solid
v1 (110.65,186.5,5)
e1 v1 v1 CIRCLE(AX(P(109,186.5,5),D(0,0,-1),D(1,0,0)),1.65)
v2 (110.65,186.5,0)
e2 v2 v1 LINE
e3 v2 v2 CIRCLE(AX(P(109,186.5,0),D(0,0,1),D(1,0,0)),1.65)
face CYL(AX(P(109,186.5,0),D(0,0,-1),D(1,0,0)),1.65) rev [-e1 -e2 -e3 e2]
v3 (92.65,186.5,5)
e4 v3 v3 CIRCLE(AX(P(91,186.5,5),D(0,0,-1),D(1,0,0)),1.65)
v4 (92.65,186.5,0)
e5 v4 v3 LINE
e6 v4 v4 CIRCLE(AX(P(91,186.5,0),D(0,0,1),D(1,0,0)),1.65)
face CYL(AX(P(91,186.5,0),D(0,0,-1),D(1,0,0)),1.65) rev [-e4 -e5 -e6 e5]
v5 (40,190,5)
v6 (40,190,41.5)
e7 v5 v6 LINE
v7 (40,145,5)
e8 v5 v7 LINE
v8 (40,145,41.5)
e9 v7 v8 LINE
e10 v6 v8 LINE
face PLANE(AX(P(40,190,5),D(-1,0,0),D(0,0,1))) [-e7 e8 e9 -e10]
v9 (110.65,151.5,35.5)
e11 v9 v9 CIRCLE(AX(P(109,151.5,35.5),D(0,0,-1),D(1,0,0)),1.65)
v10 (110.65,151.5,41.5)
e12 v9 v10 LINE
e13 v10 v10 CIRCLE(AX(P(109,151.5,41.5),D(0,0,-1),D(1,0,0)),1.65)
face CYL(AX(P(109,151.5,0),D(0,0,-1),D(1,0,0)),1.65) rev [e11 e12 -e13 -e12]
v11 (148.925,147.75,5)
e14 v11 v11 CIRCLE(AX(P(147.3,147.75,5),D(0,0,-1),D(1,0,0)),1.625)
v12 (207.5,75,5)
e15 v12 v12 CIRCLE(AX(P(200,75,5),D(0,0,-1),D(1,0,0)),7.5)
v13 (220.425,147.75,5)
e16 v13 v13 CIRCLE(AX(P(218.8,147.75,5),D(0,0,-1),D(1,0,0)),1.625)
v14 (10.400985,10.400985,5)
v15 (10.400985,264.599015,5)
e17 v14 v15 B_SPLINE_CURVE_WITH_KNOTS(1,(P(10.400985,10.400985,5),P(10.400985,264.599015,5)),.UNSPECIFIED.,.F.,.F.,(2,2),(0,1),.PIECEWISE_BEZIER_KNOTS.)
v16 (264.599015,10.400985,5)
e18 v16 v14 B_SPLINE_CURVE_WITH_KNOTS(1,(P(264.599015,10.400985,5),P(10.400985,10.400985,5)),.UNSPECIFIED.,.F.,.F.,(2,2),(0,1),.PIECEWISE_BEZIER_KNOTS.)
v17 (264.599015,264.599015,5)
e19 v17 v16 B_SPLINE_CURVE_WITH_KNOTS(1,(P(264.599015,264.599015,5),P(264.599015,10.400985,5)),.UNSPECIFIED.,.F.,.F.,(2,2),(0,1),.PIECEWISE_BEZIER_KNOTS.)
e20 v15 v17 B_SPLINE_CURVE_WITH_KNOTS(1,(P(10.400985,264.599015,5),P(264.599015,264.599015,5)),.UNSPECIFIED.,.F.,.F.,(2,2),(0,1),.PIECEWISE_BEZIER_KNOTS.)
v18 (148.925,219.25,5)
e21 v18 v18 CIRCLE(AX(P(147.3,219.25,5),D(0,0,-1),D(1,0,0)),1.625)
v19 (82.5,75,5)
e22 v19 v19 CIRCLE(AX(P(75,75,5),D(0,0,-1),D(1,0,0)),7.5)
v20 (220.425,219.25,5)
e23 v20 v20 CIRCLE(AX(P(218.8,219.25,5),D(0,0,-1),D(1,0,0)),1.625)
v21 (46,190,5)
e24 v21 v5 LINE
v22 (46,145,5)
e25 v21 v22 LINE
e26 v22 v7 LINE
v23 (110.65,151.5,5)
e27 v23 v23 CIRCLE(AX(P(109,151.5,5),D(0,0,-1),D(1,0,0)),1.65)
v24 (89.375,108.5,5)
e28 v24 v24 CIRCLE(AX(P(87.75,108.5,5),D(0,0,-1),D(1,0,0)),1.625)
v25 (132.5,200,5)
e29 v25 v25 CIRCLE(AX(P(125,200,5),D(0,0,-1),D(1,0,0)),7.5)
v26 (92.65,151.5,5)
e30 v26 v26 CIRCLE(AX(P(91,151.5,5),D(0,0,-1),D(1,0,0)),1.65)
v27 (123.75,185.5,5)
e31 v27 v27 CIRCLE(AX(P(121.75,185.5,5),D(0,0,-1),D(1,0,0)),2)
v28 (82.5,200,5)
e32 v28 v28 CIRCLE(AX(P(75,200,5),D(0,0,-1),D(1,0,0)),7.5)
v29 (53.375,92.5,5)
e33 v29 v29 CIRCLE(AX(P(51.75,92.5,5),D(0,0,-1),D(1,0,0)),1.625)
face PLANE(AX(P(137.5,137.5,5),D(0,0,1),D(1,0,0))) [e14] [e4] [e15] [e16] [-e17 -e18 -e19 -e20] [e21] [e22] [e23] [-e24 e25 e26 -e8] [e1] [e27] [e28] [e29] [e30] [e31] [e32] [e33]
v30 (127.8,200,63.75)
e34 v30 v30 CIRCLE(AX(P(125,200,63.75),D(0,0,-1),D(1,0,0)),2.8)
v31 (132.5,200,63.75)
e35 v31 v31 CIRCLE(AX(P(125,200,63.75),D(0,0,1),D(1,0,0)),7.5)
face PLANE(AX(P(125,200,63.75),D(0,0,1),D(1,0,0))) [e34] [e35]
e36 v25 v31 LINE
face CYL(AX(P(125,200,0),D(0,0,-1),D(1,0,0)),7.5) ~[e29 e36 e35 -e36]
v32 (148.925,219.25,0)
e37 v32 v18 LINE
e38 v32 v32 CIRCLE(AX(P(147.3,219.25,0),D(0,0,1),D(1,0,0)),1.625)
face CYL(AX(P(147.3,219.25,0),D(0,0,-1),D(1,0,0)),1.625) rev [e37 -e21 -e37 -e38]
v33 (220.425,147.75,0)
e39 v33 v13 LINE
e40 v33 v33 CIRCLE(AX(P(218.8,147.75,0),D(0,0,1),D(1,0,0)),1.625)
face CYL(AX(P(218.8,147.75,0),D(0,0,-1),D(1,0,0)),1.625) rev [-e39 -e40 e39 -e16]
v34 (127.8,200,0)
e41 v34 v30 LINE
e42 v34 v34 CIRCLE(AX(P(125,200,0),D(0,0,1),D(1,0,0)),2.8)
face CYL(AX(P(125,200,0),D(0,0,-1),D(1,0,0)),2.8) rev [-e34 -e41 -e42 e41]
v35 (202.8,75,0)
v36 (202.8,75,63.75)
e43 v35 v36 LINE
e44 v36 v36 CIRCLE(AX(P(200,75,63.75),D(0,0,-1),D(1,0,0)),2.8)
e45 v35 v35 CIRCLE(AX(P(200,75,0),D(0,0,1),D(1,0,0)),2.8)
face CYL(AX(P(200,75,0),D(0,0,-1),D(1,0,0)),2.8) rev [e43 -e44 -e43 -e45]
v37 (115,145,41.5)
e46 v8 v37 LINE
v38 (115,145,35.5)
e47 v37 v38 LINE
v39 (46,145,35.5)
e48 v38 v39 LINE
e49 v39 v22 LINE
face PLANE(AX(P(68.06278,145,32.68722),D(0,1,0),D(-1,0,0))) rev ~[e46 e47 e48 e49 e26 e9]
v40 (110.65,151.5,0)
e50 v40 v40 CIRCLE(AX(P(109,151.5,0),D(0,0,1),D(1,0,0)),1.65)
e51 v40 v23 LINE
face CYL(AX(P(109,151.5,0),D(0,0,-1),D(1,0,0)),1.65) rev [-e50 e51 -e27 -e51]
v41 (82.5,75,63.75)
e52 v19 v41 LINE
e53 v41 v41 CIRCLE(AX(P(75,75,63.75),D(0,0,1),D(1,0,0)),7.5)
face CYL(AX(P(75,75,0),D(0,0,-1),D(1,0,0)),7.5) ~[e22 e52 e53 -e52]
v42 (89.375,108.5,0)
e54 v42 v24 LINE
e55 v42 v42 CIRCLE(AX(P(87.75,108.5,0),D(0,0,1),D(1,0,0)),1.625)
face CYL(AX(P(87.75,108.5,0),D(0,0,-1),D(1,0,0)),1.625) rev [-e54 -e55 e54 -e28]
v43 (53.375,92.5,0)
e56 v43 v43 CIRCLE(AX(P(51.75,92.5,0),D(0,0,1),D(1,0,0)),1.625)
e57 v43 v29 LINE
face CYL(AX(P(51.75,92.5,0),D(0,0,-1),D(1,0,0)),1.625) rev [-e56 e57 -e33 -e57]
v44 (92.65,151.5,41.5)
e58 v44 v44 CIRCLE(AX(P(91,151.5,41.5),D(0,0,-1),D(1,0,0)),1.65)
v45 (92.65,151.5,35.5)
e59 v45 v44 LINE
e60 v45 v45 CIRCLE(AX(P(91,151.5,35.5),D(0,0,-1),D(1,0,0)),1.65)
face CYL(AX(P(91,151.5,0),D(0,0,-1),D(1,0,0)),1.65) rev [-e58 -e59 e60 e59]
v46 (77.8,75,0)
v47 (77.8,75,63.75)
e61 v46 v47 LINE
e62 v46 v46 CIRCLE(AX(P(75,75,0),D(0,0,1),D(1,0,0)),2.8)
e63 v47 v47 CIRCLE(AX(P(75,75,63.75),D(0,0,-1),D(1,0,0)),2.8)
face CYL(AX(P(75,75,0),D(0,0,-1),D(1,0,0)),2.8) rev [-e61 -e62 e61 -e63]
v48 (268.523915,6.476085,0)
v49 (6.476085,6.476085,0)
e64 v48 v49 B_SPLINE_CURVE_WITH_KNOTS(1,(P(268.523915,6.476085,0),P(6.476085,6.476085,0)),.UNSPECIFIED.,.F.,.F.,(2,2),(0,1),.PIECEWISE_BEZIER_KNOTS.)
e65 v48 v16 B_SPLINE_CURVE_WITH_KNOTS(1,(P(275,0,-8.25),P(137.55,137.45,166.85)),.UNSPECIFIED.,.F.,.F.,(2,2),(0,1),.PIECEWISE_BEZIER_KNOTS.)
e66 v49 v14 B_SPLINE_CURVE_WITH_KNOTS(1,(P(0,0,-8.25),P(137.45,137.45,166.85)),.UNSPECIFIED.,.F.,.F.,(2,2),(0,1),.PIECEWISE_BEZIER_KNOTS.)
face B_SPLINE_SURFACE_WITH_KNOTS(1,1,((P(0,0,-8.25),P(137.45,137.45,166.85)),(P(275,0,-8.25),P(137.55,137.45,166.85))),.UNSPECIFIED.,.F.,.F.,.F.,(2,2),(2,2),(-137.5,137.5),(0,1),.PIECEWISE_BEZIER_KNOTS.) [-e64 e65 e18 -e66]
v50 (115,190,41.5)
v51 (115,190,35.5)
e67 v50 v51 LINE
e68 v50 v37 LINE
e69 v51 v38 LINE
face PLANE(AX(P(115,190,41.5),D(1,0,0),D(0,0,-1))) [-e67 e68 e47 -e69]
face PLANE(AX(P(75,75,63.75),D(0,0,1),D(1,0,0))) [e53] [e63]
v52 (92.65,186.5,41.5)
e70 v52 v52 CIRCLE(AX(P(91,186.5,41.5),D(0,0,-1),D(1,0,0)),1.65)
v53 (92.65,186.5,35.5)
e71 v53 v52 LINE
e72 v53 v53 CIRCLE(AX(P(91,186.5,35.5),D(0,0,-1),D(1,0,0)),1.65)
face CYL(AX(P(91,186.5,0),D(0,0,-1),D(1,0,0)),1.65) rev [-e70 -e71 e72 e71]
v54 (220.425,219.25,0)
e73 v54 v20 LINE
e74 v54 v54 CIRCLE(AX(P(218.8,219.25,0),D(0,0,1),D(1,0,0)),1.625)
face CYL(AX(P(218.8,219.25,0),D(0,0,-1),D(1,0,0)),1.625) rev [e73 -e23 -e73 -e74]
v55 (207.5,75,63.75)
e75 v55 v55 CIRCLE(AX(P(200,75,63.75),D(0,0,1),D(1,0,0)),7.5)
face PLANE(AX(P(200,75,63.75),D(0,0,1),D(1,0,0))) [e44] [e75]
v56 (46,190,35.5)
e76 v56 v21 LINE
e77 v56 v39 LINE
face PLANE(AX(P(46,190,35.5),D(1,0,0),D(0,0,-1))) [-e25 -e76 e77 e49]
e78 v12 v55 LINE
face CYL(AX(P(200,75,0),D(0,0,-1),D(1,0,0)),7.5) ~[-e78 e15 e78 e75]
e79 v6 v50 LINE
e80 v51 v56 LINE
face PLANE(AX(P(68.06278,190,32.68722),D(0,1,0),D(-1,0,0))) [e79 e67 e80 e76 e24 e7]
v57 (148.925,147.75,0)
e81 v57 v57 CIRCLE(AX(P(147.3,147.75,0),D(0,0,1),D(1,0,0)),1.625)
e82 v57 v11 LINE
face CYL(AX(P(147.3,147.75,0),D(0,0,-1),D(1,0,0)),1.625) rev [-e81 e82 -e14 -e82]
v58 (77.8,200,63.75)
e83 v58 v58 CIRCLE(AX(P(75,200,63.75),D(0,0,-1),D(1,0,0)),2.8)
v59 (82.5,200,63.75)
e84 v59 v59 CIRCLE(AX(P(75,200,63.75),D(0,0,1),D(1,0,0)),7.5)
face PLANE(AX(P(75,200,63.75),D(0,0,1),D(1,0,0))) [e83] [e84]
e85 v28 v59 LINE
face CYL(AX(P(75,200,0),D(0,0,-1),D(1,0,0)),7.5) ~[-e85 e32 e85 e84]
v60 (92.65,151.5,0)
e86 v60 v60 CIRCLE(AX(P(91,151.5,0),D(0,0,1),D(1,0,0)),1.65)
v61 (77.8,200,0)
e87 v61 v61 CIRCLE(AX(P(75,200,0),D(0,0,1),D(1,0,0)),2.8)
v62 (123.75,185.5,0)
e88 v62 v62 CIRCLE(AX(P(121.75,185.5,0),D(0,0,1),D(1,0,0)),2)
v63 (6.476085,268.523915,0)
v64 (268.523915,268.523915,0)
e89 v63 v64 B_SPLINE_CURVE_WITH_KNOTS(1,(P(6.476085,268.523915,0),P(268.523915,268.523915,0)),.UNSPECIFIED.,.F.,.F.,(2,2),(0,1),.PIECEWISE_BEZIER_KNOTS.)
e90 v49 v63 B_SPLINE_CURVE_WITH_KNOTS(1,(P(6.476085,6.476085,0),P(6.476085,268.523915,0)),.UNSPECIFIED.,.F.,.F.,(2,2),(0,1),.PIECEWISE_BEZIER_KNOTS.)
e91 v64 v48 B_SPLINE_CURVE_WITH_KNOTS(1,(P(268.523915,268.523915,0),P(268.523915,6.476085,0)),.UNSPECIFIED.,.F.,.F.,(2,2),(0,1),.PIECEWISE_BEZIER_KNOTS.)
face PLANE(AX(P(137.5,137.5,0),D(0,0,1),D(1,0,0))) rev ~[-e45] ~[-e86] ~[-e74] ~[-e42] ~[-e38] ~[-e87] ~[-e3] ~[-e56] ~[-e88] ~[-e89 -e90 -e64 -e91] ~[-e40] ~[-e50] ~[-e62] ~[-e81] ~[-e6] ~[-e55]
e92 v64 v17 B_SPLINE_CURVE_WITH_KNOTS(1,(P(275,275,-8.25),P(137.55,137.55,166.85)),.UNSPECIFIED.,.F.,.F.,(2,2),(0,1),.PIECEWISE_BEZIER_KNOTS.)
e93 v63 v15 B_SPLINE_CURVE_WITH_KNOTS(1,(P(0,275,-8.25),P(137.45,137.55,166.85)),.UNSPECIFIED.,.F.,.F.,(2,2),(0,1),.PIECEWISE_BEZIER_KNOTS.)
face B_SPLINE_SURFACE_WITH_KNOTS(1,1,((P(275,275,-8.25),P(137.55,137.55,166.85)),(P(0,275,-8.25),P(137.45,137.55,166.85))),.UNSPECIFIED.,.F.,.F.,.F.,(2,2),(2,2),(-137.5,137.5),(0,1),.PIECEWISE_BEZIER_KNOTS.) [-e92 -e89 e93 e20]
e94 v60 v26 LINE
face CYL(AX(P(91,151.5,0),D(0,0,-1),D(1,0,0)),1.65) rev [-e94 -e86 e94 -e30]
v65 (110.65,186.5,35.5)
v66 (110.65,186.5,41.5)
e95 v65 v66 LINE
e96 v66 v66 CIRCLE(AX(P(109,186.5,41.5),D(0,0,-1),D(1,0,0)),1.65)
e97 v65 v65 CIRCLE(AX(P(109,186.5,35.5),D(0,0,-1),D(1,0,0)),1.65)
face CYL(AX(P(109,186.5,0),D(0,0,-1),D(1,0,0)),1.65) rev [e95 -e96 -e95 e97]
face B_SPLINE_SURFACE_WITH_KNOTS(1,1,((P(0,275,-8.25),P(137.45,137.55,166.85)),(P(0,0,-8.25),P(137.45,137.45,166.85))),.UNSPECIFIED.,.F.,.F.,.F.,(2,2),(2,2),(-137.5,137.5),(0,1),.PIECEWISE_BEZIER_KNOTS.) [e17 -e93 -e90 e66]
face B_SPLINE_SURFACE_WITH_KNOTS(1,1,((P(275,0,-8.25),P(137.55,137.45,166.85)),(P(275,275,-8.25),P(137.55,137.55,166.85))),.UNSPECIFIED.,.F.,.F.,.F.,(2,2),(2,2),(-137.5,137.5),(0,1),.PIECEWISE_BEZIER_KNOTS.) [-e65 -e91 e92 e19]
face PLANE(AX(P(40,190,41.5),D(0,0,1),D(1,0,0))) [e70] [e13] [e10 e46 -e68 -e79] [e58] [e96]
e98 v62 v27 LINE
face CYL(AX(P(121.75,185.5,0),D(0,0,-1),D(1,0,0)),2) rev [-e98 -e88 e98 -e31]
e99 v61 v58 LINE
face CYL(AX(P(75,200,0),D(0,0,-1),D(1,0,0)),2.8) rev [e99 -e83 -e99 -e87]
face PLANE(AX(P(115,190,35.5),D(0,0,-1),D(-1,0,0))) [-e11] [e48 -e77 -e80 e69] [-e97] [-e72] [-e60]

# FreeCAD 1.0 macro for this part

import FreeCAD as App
import Part
import Sketcher
from FreeCAD import Vector


def add_polygon(sketch, points):
    """Adds a closed chain of lines whose ends are joined by coincident constraints."""
    first, n = sketch.GeometryCount, len(points)
    for a, b in zip(points, points[1:] + points[:1]):
        sketch.addGeometry(Part.LineSegment(App.Vector(*a, 0), App.Vector(*b, 0)), False)
    for i in range(n):
        sketch.addConstraint(Sketcher.Constraint("Coincident", first + i, 2, first + (i + 1) % n, 1))

doc = App.newDocument("Part")
body = doc.addObject("PartDesign::Body", "Body")
body.AllowCompound = True

sketch1 = doc.addObject("Sketcher::SketchObject", "Sketch")
body.addObject(sketch1)
sketch1.AttachmentSupport = (doc.XY_Plane, [""])
sketch1.MapMode = "FlatFace"
sketch1.addGeometry(Part.Circle(Vector(51.8, 92.5, 0), Vector(0, 0, 1), 1.6), False)
sketch1.addGeometry(Part.Circle(Vector(87.8, 108.5, 0), Vector(0, 0, 1), 1.6), False)
sketch1.addGeometry(Part.Circle(Vector(121.8, 185.5, 0), Vector(0, 0, 1), 2), False)
sketch1.addGeometry(Part.Circle(Vector(147.3, 147.8, 0), Vector(0, 0, 1), 1.6), False)
sketch1.addGeometry(Part.Circle(Vector(218.8, 147.8, 0), Vector(0, 0, 1), 1.6), False)
sketch1.addGeometry(Part.Circle(Vector(218.8, 219.2, 0), Vector(0, 0, 1), 1.6), False)
sketch1.addGeometry(Part.Circle(Vector(147.3, 219.2, 0), Vector(0, 0, 1), 1.6), False)
sketch1.addGeometry(Part.Circle(Vector(75, 200, 0), Vector(0, 0, 1), 2.8), False)
sketch1.addGeometry(Part.Circle(Vector(125, 200, 0), Vector(0, 0, 1), 2.8), False)
sketch1.addGeometry(Part.Circle(Vector(200, 75, 0), Vector(0, 0, 1), 2.8), False)
sketch1.addGeometry(Part.Circle(Vector(75, 75, 0), Vector(0, 0, 1), 2.8), False)
sketch1.addGeometry(Part.Circle(Vector(91, 186.5, 0), Vector(0, 0, 1), 1.6), False)
sketch1.addGeometry(Part.Circle(Vector(109, 186.5, 0), Vector(0, 0, 1), 1.6), False)
sketch1.addGeometry(Part.Circle(Vector(91, 151.5, 0), Vector(0, 0, 1), 1.6), False)
sketch1.addGeometry(Part.Circle(Vector(109, 151.5, 0), Vector(0, 0, 1), 1.6), False)
sketch1.addConstraint(Sketcher.Constraint("Equal", 0, 1))
sketch1.addConstraint(Sketcher.Constraint("Equal", 1, 3))
sketch1.addConstraint(Sketcher.Constraint("Equal", 3, 4))
sketch1.addConstraint(Sketcher.Constraint("Equal", 4, 5))
sketch1.addConstraint(Sketcher.Constraint("Equal", 5, 6))
sketch1.addConstraint(Sketcher.Constraint("Equal", 7, 8))
sketch1.addConstraint(Sketcher.Constraint("Equal", 8, 9))
sketch1.addConstraint(Sketcher.Constraint("Equal", 9, 10))
sketch1.addConstraint(Sketcher.Constraint("Equal", 11, 12))
sketch1.addConstraint(Sketcher.Constraint("Equal", 12, 13))
sketch1.addConstraint(Sketcher.Constraint("Equal", 13, 14))
sketch1.addConstraint(Sketcher.Constraint("Horizontal", 3, 3, 4, 3))
sketch1.addConstraint(Sketcher.Constraint("Horizontal", 5, 3, 6, 3))
sketch1.addConstraint(Sketcher.Constraint("Horizontal", 7, 3, 8, 3))
sketch1.addConstraint(Sketcher.Constraint("Horizontal", 9, 3, 10, 3))
sketch1.addConstraint(Sketcher.Constraint("Horizontal", 11, 3, 12, 3))
sketch1.addConstraint(Sketcher.Constraint("Horizontal", 13, 3, 14, 3))
sketch1.addConstraint(Sketcher.Constraint("Vertical", 4, 3, 5, 3))
sketch1.addConstraint(Sketcher.Constraint("Vertical", 3, 3, 6, 3))
sketch1.addConstraint(Sketcher.Constraint("Vertical", 7, 3, 10, 3))
sketch1.addConstraint(Sketcher.Constraint("Vertical", 11, 3, 13, 3))
sketch1.addConstraint(Sketcher.Constraint("Vertical", 12, 3, 14, 3))
sketch1.addConstraint(Sketcher.Constraint("Diameter", 2, 4.0))
sketch1.addConstraint(Sketcher.Constraint("Diameter", 7, 5.6))
sketch1.addConstraint(Sketcher.Constraint("Diameter", 11, 3.3))
sketch1.addConstraint(Sketcher.Constraint("Diameter", 0, 3.25))
sketch1.addConstraint(Sketcher.Constraint("DistanceX", -1, 1, 7, 3, 75.0))
sketch1.addConstraint(Sketcher.Constraint("DistanceY", -1, 1, 7, 3, 200.0))
sketch1.addConstraint(Sketcher.Constraint("DistanceX", -1, 1, 8, 3, 125.0))
sketch1.addConstraint(Sketcher.Constraint("DistanceX", -1, 1, 9, 3, 200.0))
sketch1.addConstraint(Sketcher.Constraint("DistanceY", -1, 1, 9, 3, 75.0))
sketch1.addConstraint(Sketcher.Constraint("DistanceX", -1, 1, 11, 3, 91.0))
sketch1.addConstraint(Sketcher.Constraint("DistanceX", -1, 1, 12, 3, 109.0))
sketch1.addConstraint(Sketcher.Constraint("DistanceX", 0, 3, 1, 3, 36.0))
sketch1.addConstraint(Sketcher.Constraint("DistanceY", 0, 3, 1, 3, 16.0))
sketch1.addConstraint(Sketcher.Constraint("DistanceX", 1, 3, 2, 3, 34.0))
sketch1.addConstraint(Sketcher.Constraint("DistanceY", 1, 3, 2, 3, 77.0))
sketch1.addConstraint(Sketcher.Constraint("DistanceY", 2, 3, 11, 3, 1.0))
sketch1.addConstraint(Sketcher.Constraint("DistanceY", 13, 3, 11, 3, 35.0))
sketch1.addConstraint(Sketcher.Constraint("DistanceY", -1, 1, 0, 3, 92.5))
sketch1.addConstraint(Sketcher.Constraint("DistanceX", -1, 1, 3, 3, 147.3))
sketch1.addConstraint(Sketcher.Constraint("DistanceX", -1, 1, 4, 3, 218.8))
sketch1.addConstraint(Sketcher.Constraint("DistanceY", 4, 3, 5, 3, 71.5))
sketch1.addConstraint(Sketcher.Constraint("DistanceX", -1, 1, 0, 3, 51.75))
sketch1.addConstraint(Sketcher.Constraint("DistanceY", -1, 1, 3, 3, 147.75))
pad1 = doc.addObject("PartDesign::Pad", "Pad")
body.addObject(pad1)
pad1.Profile = sketch1
pad1.Length = 80
body2 = doc.addObject("PartDesign::Body", "Body001")

sketch2 = doc.addObject("Sketcher::SketchObject", "Sketch001")
body2.addObject(sketch2)
sketch2.AttachmentSupport = (doc.getObject("XZ_Plane001"), [""])
sketch2.MapMode = "FlatFace"
add_polygon(sketch2, [(40, 5), (46, 5), (46, 36), (115, 36), (115, 42), (40, 42)])
sketch2.addConstraint(Sketcher.Constraint("Horizontal", 0))
sketch2.addConstraint(Sketcher.Constraint("Vertical", 1))
sketch2.addConstraint(Sketcher.Constraint("Horizontal", 2))
sketch2.addConstraint(Sketcher.Constraint("Vertical", 3))
sketch2.addConstraint(Sketcher.Constraint("Horizontal", 4))
sketch2.addConstraint(Sketcher.Constraint("Vertical", 5))
sketch2.addConstraint(Sketcher.Constraint("Equal", 0, 3))
sketch2.addConstraint(Sketcher.Constraint("DistanceX", 0, 1, 0, 2, 6.0))
sketch2.addConstraint(Sketcher.Constraint("DistanceX", 2, 1, 2, 2, 69.0))
sketch2.addConstraint(Sketcher.Constraint("DistanceY", 1, 1, 1, 2, 30.5))
sketch2.addConstraint(Sketcher.Constraint("DistanceX", -1, 1, 0, 2, 46.0))
sketch2.addConstraint(Sketcher.Constraint("DistanceY", -1, 1, 0, 2, 5.0))
pad2 = doc.addObject("PartDesign::Pad", "Pad001")
body2.addObject(pad2)
pad2.Profile = sketch2
pad2.Length = 45
body3 = doc.addObject("PartDesign::Body", "Body002")
doc.recompute()

body2.Placement = App.Placement(Vector(0, 190, 0), App.Rotation(Vector(0, 0, 1), 0))
boolean = doc.addObject("PartDesign::Boolean", "Boolean")
body3.addObject(boolean)
boolean.Type = "Fuse"
boolean.addObjects([body2])
body4 = doc.addObject("PartDesign::Body", "Body003")

sketch3 = doc.addObject("Sketcher::SketchObject", "Sketch002")
body4.addObject(sketch3)
sketch3.AttachmentSupport = (doc.getObject("XY_Plane003"), [""])
sketch3.MapMode = "FlatFace"
add_polygon(sketch3, [(0, 275), (0, 0), (275, 0), (275, 275)])
sketch3.addConstraint(Sketcher.Constraint("Vertical", 0))
sketch3.addConstraint(Sketcher.Constraint("Horizontal", 1))
sketch3.addConstraint(Sketcher.Constraint("Vertical", 2))
sketch3.addConstraint(Sketcher.Constraint("Horizontal", 3))
sketch3.addConstraint(Sketcher.Constraint("Coincident", 0, 2, -1, 1))
sketch3.addConstraint(Sketcher.Constraint("Equal", 3, 0))
sketch3.addConstraint(Sketcher.Constraint("DistanceX", 1, 1, 1, 2, 275.0))
pad3 = doc.addObject("PartDesign::Pad", "Pad002")
body4.addObject(pad3)
pad3.Profile = sketch3
pad3.Length = 5
body5 = doc.addObject("PartDesign::Body", "Body004")

sketch4 = doc.addObject("Sketcher::SketchObject", "Sketch003")
body5.addObject(sketch4)
sketch4.AttachmentSupport = (doc.getObject("XY_Plane004"), [""])
sketch4.MapMode = "FlatFace"
add_polygon(sketch4, [(0, 275), (0, 0), (275, 0), (275, 275)])
sketch4.addConstraint(Sketcher.Constraint("Vertical", 0))
sketch4.addConstraint(Sketcher.Constraint("Horizontal", 1))
sketch4.addConstraint(Sketcher.Constraint("Vertical", 2))
sketch4.addConstraint(Sketcher.Constraint("Horizontal", 3))
sketch4.addConstraint(Sketcher.Constraint("Coincident", 0, 2, -1, 1))
sketch4.addConstraint(Sketcher.Constraint("Equal", 3, 0))
sketch4.addConstraint(Sketcher.Constraint("DistanceX", 1, 1, 1, 2, 275.0))

sketch5 = doc.addObject("Sketcher::SketchObject", "Sketch004")
body5.addObject(sketch5)
sketch5.AttachmentSupport = (doc.getObject("XY_Plane004"), [""])
sketch5.MapMode = "FlatFace"
sketch5.AttachmentOffset = App.Placement(Vector(0, 0, 175.1), App.Rotation())
add_polygon(sketch5, [(137.45, 137.55), (137.45, 137.45), (137.55, 137.45), (137.55, 137.55)])
sketch5.addConstraint(Sketcher.Constraint("Vertical", 0))
sketch5.addConstraint(Sketcher.Constraint("Horizontal", 1))
sketch5.addConstraint(Sketcher.Constraint("Vertical", 2))
sketch5.addConstraint(Sketcher.Constraint("Horizontal", 3))
sketch5.addConstraint(Sketcher.Constraint("Equal", 3, 0))
sketch5.addConstraint(Sketcher.Constraint("DistanceX", 1, 1, 1, 2, 0.1))
sketch5.addConstraint(Sketcher.Constraint("DistanceX", -1, 1, 0, 2, 137.45))
sketch5.addConstraint(Sketcher.Constraint("DistanceY", -1, 1, 0, 2, 137.45))

additiveloft = doc.addObject("PartDesign::AdditiveLoft", "AdditiveLoft")
body5.addObject(additiveloft)
additiveloft.Profile = sketch4
additiveloft.Sections = [sketch5]
body6 = doc.addObject("PartDesign::Body", "Body005")
doc.recompute()

body5.Placement = App.Placement(Vector(0, 0, -8.25), App.Rotation(Vector(0, 0, 1), 0))
boolean2 = doc.addObject("PartDesign::Boolean", "Boolean001")
body6.addObject(boolean2)
boolean2.Type = "Fuse"
boolean2.addObjects([body5])
doc.recompute()

boolean3 = doc.addObject("PartDesign::Boolean", "Boolean002")
body6.addObject(boolean3)
boolean3.Type = "Common"
boolean3.addObjects([body4])
body7 = doc.addObject("PartDesign::Body", "Body006")
body7.AllowCompound = True

sketch6 = doc.addObject("Sketcher::SketchObject", "Sketch005")
body7.addObject(sketch6)
sketch6.AttachmentSupport = (doc.getObject("XY_Plane006"), [""])
sketch6.MapMode = "FlatFace"
sketch6.addGeometry(Part.Circle(Vector(75, 200, 0), Vector(0, 0, 1), 8), False)
sketch6.addGeometry(Part.Circle(Vector(125, 200, 0), Vector(0, 0, 1), 8), False)
sketch6.addGeometry(Part.Circle(Vector(75, 75, 0), Vector(0, 0, 1), 8), False)
sketch6.addGeometry(Part.Circle(Vector(200, 75, 0), Vector(0, 0, 1), 8), False)
sketch6.addConstraint(Sketcher.Constraint("Equal", 0, 1))
sketch6.addConstraint(Sketcher.Constraint("Equal", 1, 2))
sketch6.addConstraint(Sketcher.Constraint("Equal", 2, 3))
sketch6.addConstraint(Sketcher.Constraint("Horizontal", 0, 3, 1, 3))
sketch6.addConstraint(Sketcher.Constraint("Horizontal", 2, 3, 3, 3))
sketch6.addConstraint(Sketcher.Constraint("Vertical", 0, 3, 2, 3))
sketch6.addConstraint(Sketcher.Constraint("Diameter", 0, 15.0))
sketch6.addConstraint(Sketcher.Constraint("DistanceX", -1, 1, 0, 3, 75.0))
sketch6.addConstraint(Sketcher.Constraint("DistanceY", -1, 1, 0, 3, 200.0))
sketch6.addConstraint(Sketcher.Constraint("DistanceX", -1, 1, 1, 3, 125.0))
sketch6.addConstraint(Sketcher.Constraint("DistanceY", -1, 1, 2, 3, 75.0))
sketch6.addConstraint(Sketcher.Constraint("DistanceX", -1, 1, 3, 3, 200.0))
pad4 = doc.addObject("PartDesign::Pad", "Pad003")
body7.addObject(pad4)
pad4.Profile = sketch6
pad4.Length = 63.75
doc.recompute()

boolean4 = doc.addObject("PartDesign::Boolean", "Boolean003")
body7.addObject(boolean4)
boolean4.Type = "Fuse"
boolean4.addObjects([body6])
doc.recompute()

boolean5 = doc.addObject("PartDesign::Boolean", "Boolean004")
body7.addObject(boolean5)
boolean5.Type = "Fuse"
boolean5.addObjects([body3])
doc.recompute()

boolean6 = doc.addObject("PartDesign::Boolean", "Boolean005")
body7.addObject(boolean6)
boolean6.Type = "Cut"
boolean6.addObjects([body])

doc.recompute()
